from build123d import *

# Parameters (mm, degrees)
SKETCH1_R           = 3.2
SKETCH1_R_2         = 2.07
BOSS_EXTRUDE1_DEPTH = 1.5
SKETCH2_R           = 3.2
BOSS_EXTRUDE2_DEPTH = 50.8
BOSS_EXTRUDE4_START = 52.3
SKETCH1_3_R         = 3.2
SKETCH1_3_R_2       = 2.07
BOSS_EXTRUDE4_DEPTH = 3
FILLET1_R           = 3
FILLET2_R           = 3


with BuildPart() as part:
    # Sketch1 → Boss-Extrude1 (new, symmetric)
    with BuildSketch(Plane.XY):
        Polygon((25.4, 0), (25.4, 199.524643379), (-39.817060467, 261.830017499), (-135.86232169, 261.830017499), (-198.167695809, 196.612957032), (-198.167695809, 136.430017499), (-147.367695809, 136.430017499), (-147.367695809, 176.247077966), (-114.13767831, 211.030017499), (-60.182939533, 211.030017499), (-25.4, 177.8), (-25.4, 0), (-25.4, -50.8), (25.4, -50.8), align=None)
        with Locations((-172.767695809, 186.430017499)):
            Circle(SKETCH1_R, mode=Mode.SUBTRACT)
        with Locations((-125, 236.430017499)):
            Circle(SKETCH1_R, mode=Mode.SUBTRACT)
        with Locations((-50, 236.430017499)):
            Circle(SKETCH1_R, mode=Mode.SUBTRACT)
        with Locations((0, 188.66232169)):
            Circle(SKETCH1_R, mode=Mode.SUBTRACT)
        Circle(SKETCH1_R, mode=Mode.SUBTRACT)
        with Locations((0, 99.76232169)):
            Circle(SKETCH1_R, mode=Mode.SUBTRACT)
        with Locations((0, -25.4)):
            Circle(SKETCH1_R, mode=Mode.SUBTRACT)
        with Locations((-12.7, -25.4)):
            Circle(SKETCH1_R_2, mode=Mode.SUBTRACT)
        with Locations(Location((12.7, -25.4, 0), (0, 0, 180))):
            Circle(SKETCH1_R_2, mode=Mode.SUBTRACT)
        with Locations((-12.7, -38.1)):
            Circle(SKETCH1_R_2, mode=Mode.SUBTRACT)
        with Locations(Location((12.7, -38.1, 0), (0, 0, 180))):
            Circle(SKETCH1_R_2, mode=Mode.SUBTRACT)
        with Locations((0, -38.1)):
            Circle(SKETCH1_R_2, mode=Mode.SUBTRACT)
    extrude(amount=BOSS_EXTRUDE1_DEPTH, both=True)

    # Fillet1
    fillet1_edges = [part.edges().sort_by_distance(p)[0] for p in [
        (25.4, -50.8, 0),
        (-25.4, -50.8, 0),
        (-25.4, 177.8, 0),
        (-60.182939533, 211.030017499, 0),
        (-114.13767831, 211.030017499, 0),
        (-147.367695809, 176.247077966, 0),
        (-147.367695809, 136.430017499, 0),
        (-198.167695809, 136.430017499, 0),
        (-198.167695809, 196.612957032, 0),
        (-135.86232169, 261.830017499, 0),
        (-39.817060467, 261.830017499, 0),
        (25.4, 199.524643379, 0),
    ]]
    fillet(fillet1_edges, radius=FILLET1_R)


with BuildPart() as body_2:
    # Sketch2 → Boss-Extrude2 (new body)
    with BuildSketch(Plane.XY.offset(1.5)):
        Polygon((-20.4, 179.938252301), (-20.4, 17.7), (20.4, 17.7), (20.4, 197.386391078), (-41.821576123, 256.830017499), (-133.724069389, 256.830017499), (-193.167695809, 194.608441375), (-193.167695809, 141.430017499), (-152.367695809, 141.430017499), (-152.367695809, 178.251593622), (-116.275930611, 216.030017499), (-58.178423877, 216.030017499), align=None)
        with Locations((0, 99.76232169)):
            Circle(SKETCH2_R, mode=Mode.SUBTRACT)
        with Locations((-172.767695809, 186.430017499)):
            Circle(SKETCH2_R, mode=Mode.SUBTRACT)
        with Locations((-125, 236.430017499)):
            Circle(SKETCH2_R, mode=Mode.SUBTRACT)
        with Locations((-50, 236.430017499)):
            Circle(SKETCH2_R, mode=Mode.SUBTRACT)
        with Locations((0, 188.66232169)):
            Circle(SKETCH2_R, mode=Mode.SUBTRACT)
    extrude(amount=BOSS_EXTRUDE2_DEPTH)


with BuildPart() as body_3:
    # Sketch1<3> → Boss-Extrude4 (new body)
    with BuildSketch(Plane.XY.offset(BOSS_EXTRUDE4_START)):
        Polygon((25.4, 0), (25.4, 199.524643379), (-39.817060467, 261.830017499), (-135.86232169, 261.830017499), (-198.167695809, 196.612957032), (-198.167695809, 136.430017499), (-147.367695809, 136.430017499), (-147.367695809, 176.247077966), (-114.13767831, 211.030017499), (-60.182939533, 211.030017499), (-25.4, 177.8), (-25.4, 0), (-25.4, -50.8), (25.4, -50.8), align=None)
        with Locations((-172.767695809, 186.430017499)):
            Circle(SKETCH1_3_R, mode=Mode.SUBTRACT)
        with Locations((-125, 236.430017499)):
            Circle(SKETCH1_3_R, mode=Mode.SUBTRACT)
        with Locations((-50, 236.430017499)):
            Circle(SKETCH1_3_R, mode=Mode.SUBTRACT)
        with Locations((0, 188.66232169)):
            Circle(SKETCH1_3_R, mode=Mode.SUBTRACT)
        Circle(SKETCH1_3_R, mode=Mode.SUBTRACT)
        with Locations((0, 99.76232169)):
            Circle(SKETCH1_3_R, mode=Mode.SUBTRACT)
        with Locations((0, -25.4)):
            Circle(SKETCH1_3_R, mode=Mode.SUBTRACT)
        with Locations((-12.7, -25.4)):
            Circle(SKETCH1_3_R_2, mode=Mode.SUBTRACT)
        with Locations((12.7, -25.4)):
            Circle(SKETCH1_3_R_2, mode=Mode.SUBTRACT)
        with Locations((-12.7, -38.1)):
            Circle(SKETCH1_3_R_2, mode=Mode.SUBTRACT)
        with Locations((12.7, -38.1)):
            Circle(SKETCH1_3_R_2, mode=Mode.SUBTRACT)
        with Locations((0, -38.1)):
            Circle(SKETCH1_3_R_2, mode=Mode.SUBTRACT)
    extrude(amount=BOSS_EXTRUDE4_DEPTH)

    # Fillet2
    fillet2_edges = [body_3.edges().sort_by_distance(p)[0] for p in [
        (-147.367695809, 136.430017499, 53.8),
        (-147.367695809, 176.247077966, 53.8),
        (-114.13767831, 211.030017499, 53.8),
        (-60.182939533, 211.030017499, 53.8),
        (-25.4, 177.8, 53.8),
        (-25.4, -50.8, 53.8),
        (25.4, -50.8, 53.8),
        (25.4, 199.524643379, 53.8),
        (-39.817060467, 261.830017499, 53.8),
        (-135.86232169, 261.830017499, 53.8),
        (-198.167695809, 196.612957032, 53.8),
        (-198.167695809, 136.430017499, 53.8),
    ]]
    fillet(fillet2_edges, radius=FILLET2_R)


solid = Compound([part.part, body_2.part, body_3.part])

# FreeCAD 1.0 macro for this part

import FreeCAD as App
import Part
import Sketcher

V = App.Vector


def edges_at(feature, points):
    """Names of the edges that pass closest to the given points."""
    edges = feature.Shape.Edges
    near = lambda p: min(range(len(edges)), key=lambda i: edges[i].distToShape(Part.Vertex(*p))[0])
    return sorted({f"Edge{near(p) + 1}" for p in points})

doc = App.newDocument("Part")
body = doc.addObject("PartDesign::Body", "Body")

# Sketch on XY plane
sketch1 = body.newObject("Sketcher::SketchObject", "Sketch")
sketch1.AttachmentSupport = (doc.getObject("XY_Plane"), [""])
sketch1.MapMode = "FlatFace"
sketch1.addGeometry(Part.LineSegment(V(25.4, 199.5, 0), V(-39.8, 261.8, 0)), False)
sketch1.addGeometry(Part.LineSegment(V(-39.8, 261.8, 0), V(-135.9, 261.8, 0)), False)
sketch1.addGeometry(Part.LineSegment(V(-135.9, 261.8, 0), V(-198.2, 196.6, 0)), False)
sketch1.addGeometry(Part.LineSegment(V(-198.2, 196.6, 0), V(-198.2, 136.4, 0)), False)
sketch1.addGeometry(Part.LineSegment(V(-198.2, 136.4, 0), V(-147.4, 136.4, 0)), False)
sketch1.addGeometry(Part.LineSegment(V(-147.4, 136.4, 0), V(-147.4, 176.2, 0)), False)
sketch1.addGeometry(Part.LineSegment(V(-147.4, 176.2, 0), V(-114.1, 211, 0)), False)
sketch1.addGeometry(Part.LineSegment(V(-114.1, 211, 0), V(-60.2, 211, 0)), False)
sketch1.addGeometry(Part.LineSegment(V(-60.2, 211, 0), V(-25.4, 177.8, 0)), False)
sketch1.addGeometry(Part.LineSegment(V(-25.4, 177.8, 0), V(-25.4, -50.8, 0)), False)
sketch1.addGeometry(Part.LineSegment(V(-25.4, -50.8, 0), V(25.4, -50.8, 0)), False)
sketch1.addGeometry(Part.LineSegment(V(25.4, -50.8, 0), V(25.4, 199.5, 0)), False)
sketch1.addGeometry(Part.Circle(V(-12.7, -38.1, 0), V(0, 0, 1), 2.1), False)
sketch1.addGeometry(Part.Circle(V(-12.7, -25.4, 0), V(0, 0, 1), 2.1), False)
sketch1.addGeometry(Part.Circle(V(0, -38.1, 0), V(0, 0, 1), 2.1), False)
sketch1.addGeometry(Part.Circle(V(0, -25.4, 0), V(0, 0, 1), 3.2), False)
sketch1.addGeometry(Part.Circle(V(12.7, -38.1, 0), V(0, 0, 1), 2.1), False)
sketch1.addGeometry(Part.Circle(V(12.7, -25.4, 0), V(0, 0, 1), 2.1), False)
sketch1.addGeometry(Part.Circle(V(0, 0, 0), V(0, 0, 1), 3.2), False)
sketch1.addGeometry(Part.Circle(V(-172.8, 186.4, 0), V(0, 0, 1), 3.2), False)
sketch1.addGeometry(Part.Circle(V(-125, 236.4, 0), V(0, 0, 1), 3.2), False)
sketch1.addGeometry(Part.Circle(V(0, 99.8, 0), V(0, 0, 1), 3.2), False)
sketch1.addGeometry(Part.Circle(V(-50, 236.4, 0), V(0, 0, 1), 3.2), False)
sketch1.addGeometry(Part.Circle(V(0, 188.7, 0), V(0, 0, 1), 3.2), False)
sketch1.addConstraint(Sketcher.Constraint("Coincident", 0, 2, 1, 1))
sketch1.addConstraint(Sketcher.Constraint("Coincident", 1, 2, 2, 1))
sketch1.addConstraint(Sketcher.Constraint("Coincident", 2, 2, 3, 1))
sketch1.addConstraint(Sketcher.Constraint("Coincident", 3, 2, 4, 1))
sketch1.addConstraint(Sketcher.Constraint("Coincident", 4, 2, 5, 1))
sketch1.addConstraint(Sketcher.Constraint("Coincident", 5, 2, 6, 1))
sketch1.addConstraint(Sketcher.Constraint("Coincident", 6, 2, 7, 1))
sketch1.addConstraint(Sketcher.Constraint("Coincident", 7, 2, 8, 1))
sketch1.addConstraint(Sketcher.Constraint("Coincident", 8, 2, 9, 1))
sketch1.addConstraint(Sketcher.Constraint("Coincident", 9, 2, 10, 1))
sketch1.addConstraint(Sketcher.Constraint("Coincident", 10, 2, 11, 1))
sketch1.addConstraint(Sketcher.Constraint("Coincident", 11, 2, 0, 1))
sketch1.addConstraint(Sketcher.Constraint("Horizontal", 1))
sketch1.addConstraint(Sketcher.Constraint("Vertical", 3))
sketch1.addConstraint(Sketcher.Constraint("Horizontal", 4))
sketch1.addConstraint(Sketcher.Constraint("Vertical", 5))
sketch1.addConstraint(Sketcher.Constraint("Horizontal", 7))
sketch1.addConstraint(Sketcher.Constraint("Vertical", 9))
sketch1.addConstraint(Sketcher.Constraint("Horizontal", 10))
sketch1.addConstraint(Sketcher.Constraint("Vertical", 11))
sketch1.addConstraint(Sketcher.Constraint("Coincident", 18, 3, -1, 1))
sketch1.addConstraint(Sketcher.Constraint("Equal", 12, 13))
sketch1.addConstraint(Sketcher.Constraint("Equal", 13, 14))
sketch1.addConstraint(Sketcher.Constraint("Equal", 14, 16))
sketch1.addConstraint(Sketcher.Constraint("Equal", 16, 17))
sketch1.addConstraint(Sketcher.Constraint("Equal", 15, 18))
sketch1.addConstraint(Sketcher.Constraint("Equal", 18, 19))
sketch1.addConstraint(Sketcher.Constraint("Equal", 19, 20))
sketch1.addConstraint(Sketcher.Constraint("Equal", 20, 21))
sketch1.addConstraint(Sketcher.Constraint("Equal", 21, 22))
sketch1.addConstraint(Sketcher.Constraint("Equal", 22, 23))
sketch1.addConstraint(Sketcher.Constraint("Symmetric", 12, 3, 16, 3, -2))
sketch1.addConstraint(Sketcher.Constraint("Symmetric", 13, 3, 17, 3, -2))
sketch1.addConstraint(Sketcher.Constraint("PointOnObject", 14, 3, -2))
sketch1.addConstraint(Sketcher.Constraint("PointOnObject", 15, 3, -2))
sketch1.addConstraint(Sketcher.Constraint("PointOnObject", 21, 3, -2))
sketch1.addConstraint(Sketcher.Constraint("PointOnObject", 23, 3, -2))
sketch1.addConstraint(Sketcher.Constraint("Perpendicular", 0, 2))
sketch1.addConstraint(Sketcher.Constraint("Parallel", 2, 6))
sketch1.addConstraint(Sketcher.Constraint("Perpendicular", 6, 8))
sketch1.addConstraint(Sketcher.Constraint("Horizontal", 12, 3, 14, 3))
sketch1.addConstraint(Sketcher.Constraint("Horizontal", 13, 3, 15, 3))
sketch1.addConstraint(Sketcher.Constraint("Horizontal", 20, 3, 22, 3))
sketch1.addConstraint(Sketcher.Constraint("Vertical", 12, 3, 13, 3))
sketch1.addConstraint(Sketcher.Constraint("Equal", 4, 10))
sketch1.addConstraint(Sketcher.Constraint("Equal", 0, 2))
sketch1.addConstraint(Sketcher.Constraint("Equal", 6, 8))
sketch1.addConstraint(Sketcher.Constraint("Diameter", 15, 6.4))
sketch1.addConstraint(Sketcher.Constraint("Diameter", 12, 4.14))
sketch1.addConstraint(Sketcher.Constraint("DistanceX", 4, 1, 4, 2, 50.8))
sketch1.addConstraint(Sketcher.Constraint("DistanceY", 9, 2, 9, 1, 228.6))
sketch1.addConstraint(Sketcher.Constraint("DistanceX", 20, 3, -1, 1, 125.0))
sketch1.addConstraint(Sketcher.Constraint("DistanceX", 22, 3, -1, 1, 50.0))
sketch1.addConstraint(Sketcher.Constraint("DistanceY", 19, 3, 20, 3, 50.0))
sketch1.addConstraint(Sketcher.Constraint("DistanceY", 3, 2, 19, 3, 50.0))
sketch1.addConstraint(Sketcher.Constraint("DistanceX", 12, 3, -1, 1, 12.7))
sketch1.addConstraint(Sketcher.Constraint("DistanceY", 12, 3, -1, 1, 38.1))
sketch1.addConstraint(Sketcher.Constraint("DistanceY", 13, 3, -1, 1, 25.4))
sketch1.addConstraint(Sketcher.Constraint("DistanceX", 8, 2, -1, 1, 25.4))
sketch1.addConstraint(Sketcher.Constraint("DistanceY", -1, 1, 8, 2, 177.8))
sketch1.addConstraint(Sketcher.Constraint("DistanceY", 21, 3, 23, 3, 88.9))
sketch1.addConstraint(Sketcher.Constraint("DistanceY", 22, 3, 0, 2, 25.4))
sketch1.addConstraint(Sketcher.Constraint("DistanceX", 2, 2, 19, 3, 25.4))
sketch1.addConstraint(Sketcher.Constraint("DistanceY", 6, 2, 20, 3, 25.4))
sketch1.addConstraint(Sketcher.Constraint("DistanceX", 1, 2, 1, 1, 96.045261))
sketch1.addConstraint(Sketcher.Constraint("DistanceX", 7, 1, 7, 2, 53.954739))
sketch1.addConstraint(Sketcher.Constraint("DistanceY", 3, 2, 3, 1, 60.18294))
sketch1.addConstraint(Sketcher.Constraint("DistanceY", 5, 1, 5, 2, 39.81706))
sketch1.addConstraint(Sketcher.Constraint("DistanceY", -1, 1, 21, 3, 99.762322))
pad1 = body.newObject("PartDesign::Pad", "Pad")
pad1.Profile = sketch1
pad1.Length = 3
pad1.Midplane = True
doc.recompute()

fillet = body.newObject("PartDesign::Fillet", "Fillet")
fillet.Base = (pad1, edges_at(pad1, [
    (25.4, -50.8, 0),
    (-25.4, -50.8, 0),
    (-25.4, 177.8, 0),
    (-60.183, 211.03, 0),
    (-114.138, 211.03, 0),
    (-147.368, 176.247, 0),
    (-147.368, 136.43, 0),
    (-198.168, 136.43, 0),
    (-198.168, 196.613, 0),
    (-135.862, 261.83, 0),
    (-39.817, 261.83, 0),
    (25.4, 199.525, 0),
]))
fillet.Radius = 3
body2 = doc.addObject("PartDesign::Body", "Body001")

# Sketch on XY plane
sketch2 = body2.newObject("Sketcher::SketchObject", "Sketch001")
sketch2.AttachmentSupport = (doc.getObject("XY_Plane001"), [""])
sketch2.MapMode = "FlatFace"
sketch2.AttachmentOffset = App.Placement(V(0, 0, 1.5), App.Rotation())
sketch2.addGeometry(Part.LineSegment(V(-20.4, 179.9, 0), V(-20.4, 17.7, 0)), False)
sketch2.addGeometry(Part.LineSegment(V(-20.4, 17.7, 0), V(20.4, 17.7, 0)), False)
sketch2.addGeometry(Part.LineSegment(V(20.4, 17.7, 0), V(20.4, 197.4, 0)), False)
sketch2.addGeometry(Part.LineSegment(V(20.4, 197.4, 0), V(-41.8, 256.8, 0)), False)
sketch2.addGeometry(Part.LineSegment(V(-41.8, 256.8, 0), V(-133.7, 256.8, 0)), False)
sketch2.addGeometry(Part.LineSegment(V(-133.7, 256.8, 0), V(-193.2, 194.6, 0)), False)
sketch2.addGeometry(Part.LineSegment(V(-193.2, 194.6, 0), V(-193.2, 141.4, 0)), False)
sketch2.addGeometry(Part.LineSegment(V(-193.2, 141.4, 0), V(-152.4, 141.4, 0)), False)
sketch2.addGeometry(Part.LineSegment(V(-152.4, 141.4, 0), V(-152.4, 178.3, 0)), False)
sketch2.addGeometry(Part.LineSegment(V(-152.4, 178.3, 0), V(-116.3, 216, 0)), False)
sketch2.addGeometry(Part.LineSegment(V(-116.3, 216, 0), V(-58.2, 216, 0)), False)
sketch2.addGeometry(Part.LineSegment(V(-58.2, 216, 0), V(-20.4, 179.9, 0)), False)
sketch2.addGeometry(Part.Circle(V(0, 99.8, 0), V(0, 0, 1), 3.2), False)
sketch2.addGeometry(Part.Circle(V(-172.8, 186.4, 0), V(0, 0, 1), 3.2), False)
sketch2.addGeometry(Part.Circle(V(-125, 236.4, 0), V(0, 0, 1), 3.2), False)
sketch2.addGeometry(Part.Circle(V(0, 188.7, 0), V(0, 0, 1), 3.2), False)
sketch2.addGeometry(Part.Circle(V(-50, 236.4, 0), V(0, 0, 1), 3.2), False)
sketch2.addConstraint(Sketcher.Constraint("Coincident", 0, 2, 1, 1))
sketch2.addConstraint(Sketcher.Constraint("Coincident", 1, 2, 2, 1))
sketch2.addConstraint(Sketcher.Constraint("Coincident", 2, 2, 3, 1))
sketch2.addConstraint(Sketcher.Constraint("Coincident", 3, 2, 4, 1))
sketch2.addConstraint(Sketcher.Constraint("Coincident", 4, 2, 5, 1))
sketch2.addConstraint(Sketcher.Constraint("Coincident", 5, 2, 6, 1))
sketch2.addConstraint(Sketcher.Constraint("Coincident", 6, 2, 7, 1))
sketch2.addConstraint(Sketcher.Constraint("Coincident", 7, 2, 8, 1))
sketch2.addConstraint(Sketcher.Constraint("Coincident", 8, 2, 9, 1))
sketch2.addConstraint(Sketcher.Constraint("Coincident", 9, 2, 10, 1))
sketch2.addConstraint(Sketcher.Constraint("Coincident", 10, 2, 11, 1))
sketch2.addConstraint(Sketcher.Constraint("Coincident", 11, 2, 0, 1))
sketch2.addConstraint(Sketcher.Constraint("Vertical", 0))
sketch2.addConstraint(Sketcher.Constraint("Horizontal", 1))
sketch2.addConstraint(Sketcher.Constraint("Vertical", 2))
sketch2.addConstraint(Sketcher.Constraint("Horizontal", 4))
sketch2.addConstraint(Sketcher.Constraint("Vertical", 6))
sketch2.addConstraint(Sketcher.Constraint("Horizontal", 7))
sketch2.addConstraint(Sketcher.Constraint("Vertical", 8))
sketch2.addConstraint(Sketcher.Constraint("Horizontal", 10))
sketch2.addConstraint(Sketcher.Constraint("Equal", 12, 13))
sketch2.addConstraint(Sketcher.Constraint("Equal", 13, 14))
sketch2.addConstraint(Sketcher.Constraint("Equal", 14, 15))
sketch2.addConstraint(Sketcher.Constraint("Equal", 15, 16))
sketch2.addConstraint(Sketcher.Constraint("PointOnObject", 12, 3, -2))
sketch2.addConstraint(Sketcher.Constraint("PointOnObject", 15, 3, -2))
sketch2.addConstraint(Sketcher.Constraint("Perpendicular", 3, 5))
sketch2.addConstraint(Sketcher.Constraint("Parallel", 5, 9))
sketch2.addConstraint(Sketcher.Constraint("Perpendicular", 9, 11))
sketch2.addConstraint(Sketcher.Constraint("Horizontal", 14, 3, 16, 3))
sketch2.addConstraint(Sketcher.Constraint("Equal", 1, 7))
sketch2.addConstraint(Sketcher.Constraint("Equal", 3, 5))
sketch2.addConstraint(Sketcher.Constraint("Equal", 9, 11))
sketch2.addConstraint(Sketcher.Constraint("Diameter", 12, 6.4))
sketch2.addConstraint(Sketcher.Constraint("DistanceX", 1, 1, 1, 2, 40.8))
sketch2.addConstraint(Sketcher.Constraint("DistanceX", 14, 3, -1, 1, 125.0))
sketch2.addConstraint(Sketcher.Constraint("DistanceX", 16, 3, -1, 1, 50.0))
sketch2.addConstraint(Sketcher.Constraint("DistanceY", 13, 3, 14, 3, 50.0))
sketch2.addConstraint(Sketcher.Constraint("DistanceY", 6, 2, 13, 3, 45.0))
sketch2.addConstraint(Sketcher.Constraint("DistanceX", 0, 2, -1, 1, 20.4))
sketch2.addConstraint(Sketcher.Constraint("DistanceY", -1, 1, 0, 2, 17.7))
sketch2.addConstraint(Sketcher.Constraint("DistanceY", 12, 3, 15, 3, 88.9))
sketch2.addConstraint(Sketcher.Constraint("DistanceY", 16, 3, 3, 2, 20.4))
sketch2.addConstraint(Sketcher.Constraint("DistanceX", 5, 2, 13, 3, 20.4))
sketch2.addConstraint(Sketcher.Constraint("DistanceY", 9, 2, 14, 3, 20.4))
sketch2.addConstraint(Sketcher.Constraint("DistanceY", 2, 1, 2, 2, 179.686391))
sketch2.addConstraint(Sketcher.Constraint("DistanceX", 4, 2, 4, 1, 91.902493))
sketch2.addConstraint(Sketcher.Constraint("DistanceX", 10, 1, 10, 2, 58.097507))
sketch2.addConstraint(Sketcher.Constraint("DistanceY", 0, 2, 0, 1, 162.238252))
sketch2.addConstraint(Sketcher.Constraint("DistanceY", 6, 2, 6, 1, 53.178424))
sketch2.addConstraint(Sketcher.Constraint("DistanceY", -1, 1, 12, 3, 99.762322))
pad2 = body2.newObject("PartDesign::Pad", "Pad001")
pad2.Profile = sketch2
pad2.Length = 50.8
body3 = doc.addObject("PartDesign::Body", "Body002")

# Sketch on XY plane
sketch3 = body3.newObject("Sketcher::SketchObject", "Sketch002")
sketch3.AttachmentSupport = (doc.getObject("XY_Plane002"), [""])
sketch3.MapMode = "FlatFace"
sketch3.AttachmentOffset = App.Placement(V(0, 0, 52.3), App.Rotation())
sketch3.addGeometry(Part.LineSegment(V(25.4, 199.5, 0), V(-39.8, 261.8, 0)), False)
sketch3.addGeometry(Part.LineSegment(V(-39.8, 261.8, 0), V(-135.9, 261.8, 0)), False)
sketch3.addGeometry(Part.LineSegment(V(-135.9, 261.8, 0), V(-198.2, 196.6, 0)), False)
sketch3.addGeometry(Part.LineSegment(V(-198.2, 196.6, 0), V(-198.2, 136.4, 0)), False)
sketch3.addGeometry(Part.LineSegment(V(-198.2, 136.4, 0), V(-147.4, 136.4, 0)), False)
sketch3.addGeometry(Part.LineSegment(V(-147.4, 136.4, 0), V(-147.4, 176.2, 0)), False)
sketch3.addGeometry(Part.LineSegment(V(-147.4, 176.2, 0), V(-114.1, 211, 0)), False)
sketch3.addGeometry(Part.LineSegment(V(-114.1, 211, 0), V(-60.2, 211, 0)), False)
sketch3.addGeometry(Part.LineSegment(V(-60.2, 211, 0), V(-25.4, 177.8, 0)), False)
sketch3.addGeometry(Part.LineSegment(V(-25.4, 177.8, 0), V(-25.4, -50.8, 0)), False)
sketch3.addGeometry(Part.LineSegment(V(-25.4, -50.8, 0), V(25.4, -50.8, 0)), False)
sketch3.addGeometry(Part.LineSegment(V(25.4, -50.8, 0), V(25.4, 199.5, 0)), False)
sketch3.addGeometry(Part.Circle(V(-12.7, -38.1, 0), V(0, 0, 1), 2.1), False)
sketch3.addGeometry(Part.Circle(V(-12.7, -25.4, 0), V(0, 0, 1), 2.1), False)
sketch3.addGeometry(Part.Circle(V(0, -38.1, 0), V(0, 0, 1), 2.1), False)
sketch3.addGeometry(Part.Circle(V(0, -25.4, 0), V(0, 0, 1), 3.2), False)
sketch3.addGeometry(Part.Circle(V(12.7, -38.1, 0), V(0, 0, 1), 2.1), False)
sketch3.addGeometry(Part.Circle(V(12.7, -25.4, 0), V(0, 0, 1), 2.1), False)
sketch3.addGeometry(Part.Circle(V(0, 0, 0), V(0, 0, 1), 3.2), False)
sketch3.addGeometry(Part.Circle(V(-172.8, 186.4, 0), V(0, 0, 1), 3.2), False)
sketch3.addGeometry(Part.Circle(V(-125, 236.4, 0), V(0, 0, 1), 3.2), False)
sketch3.addGeometry(Part.Circle(V(0, 99.8, 0), V(0, 0, 1), 3.2), False)
sketch3.addGeometry(Part.Circle(V(-50, 236.4, 0), V(0, 0, 1), 3.2), False)
sketch3.addGeometry(Part.Circle(V(0, 188.7, 0), V(0, 0, 1), 3.2), False)
sketch3.addConstraint(Sketcher.Constraint("Coincident", 0, 2, 1, 1))
sketch3.addConstraint(Sketcher.Constraint("Coincident", 1, 2, 2, 1))
sketch3.addConstraint(Sketcher.Constraint("Coincident", 2, 2, 3, 1))
sketch3.addConstraint(Sketcher.Constraint("Coincident", 3, 2, 4, 1))
sketch3.addConstraint(Sketcher.Constraint("Coincident", 4, 2, 5, 1))
sketch3.addConstraint(Sketcher.Constraint("Coincident", 5, 2, 6, 1))
sketch3.addConstraint(Sketcher.Constraint("Coincident", 6, 2, 7, 1))
sketch3.addConstraint(Sketcher.Constraint("Coincident", 7, 2, 8, 1))
sketch3.addConstraint(Sketcher.Constraint("Coincident", 8, 2, 9, 1))
sketch3.addConstraint(Sketcher.Constraint("Coincident", 9, 2, 10, 1))
sketch3.addConstraint(Sketcher.Constraint("Coincident", 10, 2, 11, 1))
sketch3.addConstraint(Sketcher.Constraint("Coincident", 11, 2, 0, 1))
sketch3.addConstraint(Sketcher.Constraint("Horizontal", 1))
sketch3.addConstraint(Sketcher.Constraint("Vertical", 3))
sketch3.addConstraint(Sketcher.Constraint("Horizontal", 4))
sketch3.addConstraint(Sketcher.Constraint("Vertical", 5))
sketch3.addConstraint(Sketcher.Constraint("Horizontal", 7))
sketch3.addConstraint(Sketcher.Constraint("Vertical", 9))
sketch3.addConstraint(Sketcher.Constraint("Horizontal", 10))
sketch3.addConstraint(Sketcher.Constraint("Vertical", 11))
sketch3.addConstraint(Sketcher.Constraint("Coincident", 18, 3, -1, 1))
sketch3.addConstraint(Sketcher.Constraint("Equal", 12, 13))
sketch3.addConstraint(Sketcher.Constraint("Equal", 13, 14))
sketch3.addConstraint(Sketcher.Constraint("Equal", 14, 16))
sketch3.addConstraint(Sketcher.Constraint("Equal", 16, 17))
sketch3.addConstraint(Sketcher.Constraint("Equal", 15, 18))
sketch3.addConstraint(Sketcher.Constraint("Equal", 18, 19))
sketch3.addConstraint(Sketcher.Constraint("Equal", 19, 20))
sketch3.addConstraint(Sketcher.Constraint("Equal", 20, 21))
sketch3.addConstraint(Sketcher.Constraint("Equal", 21, 22))
sketch3.addConstraint(Sketcher.Constraint("Equal", 22, 23))
sketch3.addConstraint(Sketcher.Constraint("Symmetric", 12, 3, 16, 3, -2))
sketch3.addConstraint(Sketcher.Constraint("Symmetric", 13, 3, 17, 3, -2))
sketch3.addConstraint(Sketcher.Constraint("PointOnObject", 14, 3, -2))
sketch3.addConstraint(Sketcher.Constraint("PointOnObject", 15, 3, -2))
sketch3.addConstraint(Sketcher.Constraint("PointOnObject", 21, 3, -2))
sketch3.addConstraint(Sketcher.Constraint("PointOnObject", 23, 3, -2))
sketch3.addConstraint(Sketcher.Constraint("Perpendicular", 0, 2))
sketch3.addConstraint(Sketcher.Constraint("Parallel", 2, 6))
sketch3.addConstraint(Sketcher.Constraint("Perpendicular", 6, 8))
sketch3.addConstraint(Sketcher.Constraint("Horizontal", 12, 3, 14, 3))
sketch3.addConstraint(Sketcher.Constraint("Horizontal", 13, 3, 15, 3))
sketch3.addConstraint(Sketcher.Constraint("Horizontal", 20, 3, 22, 3))
sketch3.addConstraint(Sketcher.Constraint("Vertical", 12, 3, 13, 3))
sketch3.addConstraint(Sketcher.Constraint("Equal", 4, 10))
sketch3.addConstraint(Sketcher.Constraint("Equal", 0, 2))
sketch3.addConstraint(Sketcher.Constraint("Equal", 6, 8))
sketch3.addConstraint(Sketcher.Constraint("Diameter", 15, 6.4))
sketch3.addConstraint(Sketcher.Constraint("Diameter", 12, 4.14))
sketch3.addConstraint(Sketcher.Constraint("DistanceX", 4, 1, 4, 2, 50.8))
sketch3.addConstraint(Sketcher.Constraint("DistanceY", 9, 2, 9, 1, 228.6))
sketch3.addConstraint(Sketcher.Constraint("DistanceX", 20, 3, -1, 1, 125.0))
sketch3.addConstraint(Sketcher.Constraint("DistanceX", 22, 3, -1, 1, 50.0))
sketch3.addConstraint(Sketcher.Constraint("DistanceY", 19, 3, 20, 3, 50.0))
sketch3.addConstraint(Sketcher.Constraint("DistanceY", 3, 2, 19, 3, 50.0))
sketch3.addConstraint(Sketcher.Constraint("DistanceX", 12, 3, -1, 1, 12.7))
sketch3.addConstraint(Sketcher.Constraint("DistanceY", 12, 3, -1, 1, 38.1))
sketch3.addConstraint(Sketcher.Constraint("DistanceY", 13, 3, -1, 1, 25.4))
sketch3.addConstraint(Sketcher.Constraint("DistanceX", 8, 2, -1, 1, 25.4))
sketch3.addConstraint(Sketcher.Constraint("DistanceY", -1, 1, 8, 2, 177.8))
sketch3.addConstraint(Sketcher.Constraint("DistanceY", 21, 3, 23, 3, 88.9))
sketch3.addConstraint(Sketcher.Constraint("DistanceY", 22, 3, 0, 2, 25.4))
sketch3.addConstraint(Sketcher.Constraint("DistanceX", 2, 2, 19, 3, 25.4))
sketch3.addConstraint(Sketcher.Constraint("DistanceY", 6, 2, 20, 3, 25.4))
sketch3.addConstraint(Sketcher.Constraint("DistanceX", 1, 2, 1, 1, 96.045261))
sketch3.addConstraint(Sketcher.Constraint("DistanceX", 7, 1, 7, 2, 53.954739))
sketch3.addConstraint(Sketcher.Constraint("DistanceY", 3, 2, 3, 1, 60.18294))
sketch3.addConstraint(Sketcher.Constraint("DistanceY", 5, 1, 5, 2, 39.81706))
sketch3.addConstraint(Sketcher.Constraint("DistanceY", -1, 1, 21, 3, 99.762322))
pad3 = body3.newObject("PartDesign::Pad", "Pad002")
pad3.Profile = sketch3
pad3.Length = 3
doc.recompute()

fillet2 = body3.newObject("PartDesign::Fillet", "Fillet001")
fillet2.Base = (pad3, edges_at(pad3, [
    (-147.368, 136.43, 53.8),
    (-147.368, 176.247, 53.8),
    (-114.138, 211.03, 53.8),
    (-60.183, 211.03, 53.8),
    (-25.4, 177.8, 53.8),
    (-25.4, -50.8, 53.8),
    (25.4, -50.8, 53.8),
    (25.4, 199.525, 53.8),
    (-39.817, 261.83, 53.8),
    (-135.862, 261.83, 53.8),
    (-198.168, 196.613, 53.8),
    (-198.168, 136.43, 53.8),
]))
fillet2.Radius = 3

doc.recompute()
